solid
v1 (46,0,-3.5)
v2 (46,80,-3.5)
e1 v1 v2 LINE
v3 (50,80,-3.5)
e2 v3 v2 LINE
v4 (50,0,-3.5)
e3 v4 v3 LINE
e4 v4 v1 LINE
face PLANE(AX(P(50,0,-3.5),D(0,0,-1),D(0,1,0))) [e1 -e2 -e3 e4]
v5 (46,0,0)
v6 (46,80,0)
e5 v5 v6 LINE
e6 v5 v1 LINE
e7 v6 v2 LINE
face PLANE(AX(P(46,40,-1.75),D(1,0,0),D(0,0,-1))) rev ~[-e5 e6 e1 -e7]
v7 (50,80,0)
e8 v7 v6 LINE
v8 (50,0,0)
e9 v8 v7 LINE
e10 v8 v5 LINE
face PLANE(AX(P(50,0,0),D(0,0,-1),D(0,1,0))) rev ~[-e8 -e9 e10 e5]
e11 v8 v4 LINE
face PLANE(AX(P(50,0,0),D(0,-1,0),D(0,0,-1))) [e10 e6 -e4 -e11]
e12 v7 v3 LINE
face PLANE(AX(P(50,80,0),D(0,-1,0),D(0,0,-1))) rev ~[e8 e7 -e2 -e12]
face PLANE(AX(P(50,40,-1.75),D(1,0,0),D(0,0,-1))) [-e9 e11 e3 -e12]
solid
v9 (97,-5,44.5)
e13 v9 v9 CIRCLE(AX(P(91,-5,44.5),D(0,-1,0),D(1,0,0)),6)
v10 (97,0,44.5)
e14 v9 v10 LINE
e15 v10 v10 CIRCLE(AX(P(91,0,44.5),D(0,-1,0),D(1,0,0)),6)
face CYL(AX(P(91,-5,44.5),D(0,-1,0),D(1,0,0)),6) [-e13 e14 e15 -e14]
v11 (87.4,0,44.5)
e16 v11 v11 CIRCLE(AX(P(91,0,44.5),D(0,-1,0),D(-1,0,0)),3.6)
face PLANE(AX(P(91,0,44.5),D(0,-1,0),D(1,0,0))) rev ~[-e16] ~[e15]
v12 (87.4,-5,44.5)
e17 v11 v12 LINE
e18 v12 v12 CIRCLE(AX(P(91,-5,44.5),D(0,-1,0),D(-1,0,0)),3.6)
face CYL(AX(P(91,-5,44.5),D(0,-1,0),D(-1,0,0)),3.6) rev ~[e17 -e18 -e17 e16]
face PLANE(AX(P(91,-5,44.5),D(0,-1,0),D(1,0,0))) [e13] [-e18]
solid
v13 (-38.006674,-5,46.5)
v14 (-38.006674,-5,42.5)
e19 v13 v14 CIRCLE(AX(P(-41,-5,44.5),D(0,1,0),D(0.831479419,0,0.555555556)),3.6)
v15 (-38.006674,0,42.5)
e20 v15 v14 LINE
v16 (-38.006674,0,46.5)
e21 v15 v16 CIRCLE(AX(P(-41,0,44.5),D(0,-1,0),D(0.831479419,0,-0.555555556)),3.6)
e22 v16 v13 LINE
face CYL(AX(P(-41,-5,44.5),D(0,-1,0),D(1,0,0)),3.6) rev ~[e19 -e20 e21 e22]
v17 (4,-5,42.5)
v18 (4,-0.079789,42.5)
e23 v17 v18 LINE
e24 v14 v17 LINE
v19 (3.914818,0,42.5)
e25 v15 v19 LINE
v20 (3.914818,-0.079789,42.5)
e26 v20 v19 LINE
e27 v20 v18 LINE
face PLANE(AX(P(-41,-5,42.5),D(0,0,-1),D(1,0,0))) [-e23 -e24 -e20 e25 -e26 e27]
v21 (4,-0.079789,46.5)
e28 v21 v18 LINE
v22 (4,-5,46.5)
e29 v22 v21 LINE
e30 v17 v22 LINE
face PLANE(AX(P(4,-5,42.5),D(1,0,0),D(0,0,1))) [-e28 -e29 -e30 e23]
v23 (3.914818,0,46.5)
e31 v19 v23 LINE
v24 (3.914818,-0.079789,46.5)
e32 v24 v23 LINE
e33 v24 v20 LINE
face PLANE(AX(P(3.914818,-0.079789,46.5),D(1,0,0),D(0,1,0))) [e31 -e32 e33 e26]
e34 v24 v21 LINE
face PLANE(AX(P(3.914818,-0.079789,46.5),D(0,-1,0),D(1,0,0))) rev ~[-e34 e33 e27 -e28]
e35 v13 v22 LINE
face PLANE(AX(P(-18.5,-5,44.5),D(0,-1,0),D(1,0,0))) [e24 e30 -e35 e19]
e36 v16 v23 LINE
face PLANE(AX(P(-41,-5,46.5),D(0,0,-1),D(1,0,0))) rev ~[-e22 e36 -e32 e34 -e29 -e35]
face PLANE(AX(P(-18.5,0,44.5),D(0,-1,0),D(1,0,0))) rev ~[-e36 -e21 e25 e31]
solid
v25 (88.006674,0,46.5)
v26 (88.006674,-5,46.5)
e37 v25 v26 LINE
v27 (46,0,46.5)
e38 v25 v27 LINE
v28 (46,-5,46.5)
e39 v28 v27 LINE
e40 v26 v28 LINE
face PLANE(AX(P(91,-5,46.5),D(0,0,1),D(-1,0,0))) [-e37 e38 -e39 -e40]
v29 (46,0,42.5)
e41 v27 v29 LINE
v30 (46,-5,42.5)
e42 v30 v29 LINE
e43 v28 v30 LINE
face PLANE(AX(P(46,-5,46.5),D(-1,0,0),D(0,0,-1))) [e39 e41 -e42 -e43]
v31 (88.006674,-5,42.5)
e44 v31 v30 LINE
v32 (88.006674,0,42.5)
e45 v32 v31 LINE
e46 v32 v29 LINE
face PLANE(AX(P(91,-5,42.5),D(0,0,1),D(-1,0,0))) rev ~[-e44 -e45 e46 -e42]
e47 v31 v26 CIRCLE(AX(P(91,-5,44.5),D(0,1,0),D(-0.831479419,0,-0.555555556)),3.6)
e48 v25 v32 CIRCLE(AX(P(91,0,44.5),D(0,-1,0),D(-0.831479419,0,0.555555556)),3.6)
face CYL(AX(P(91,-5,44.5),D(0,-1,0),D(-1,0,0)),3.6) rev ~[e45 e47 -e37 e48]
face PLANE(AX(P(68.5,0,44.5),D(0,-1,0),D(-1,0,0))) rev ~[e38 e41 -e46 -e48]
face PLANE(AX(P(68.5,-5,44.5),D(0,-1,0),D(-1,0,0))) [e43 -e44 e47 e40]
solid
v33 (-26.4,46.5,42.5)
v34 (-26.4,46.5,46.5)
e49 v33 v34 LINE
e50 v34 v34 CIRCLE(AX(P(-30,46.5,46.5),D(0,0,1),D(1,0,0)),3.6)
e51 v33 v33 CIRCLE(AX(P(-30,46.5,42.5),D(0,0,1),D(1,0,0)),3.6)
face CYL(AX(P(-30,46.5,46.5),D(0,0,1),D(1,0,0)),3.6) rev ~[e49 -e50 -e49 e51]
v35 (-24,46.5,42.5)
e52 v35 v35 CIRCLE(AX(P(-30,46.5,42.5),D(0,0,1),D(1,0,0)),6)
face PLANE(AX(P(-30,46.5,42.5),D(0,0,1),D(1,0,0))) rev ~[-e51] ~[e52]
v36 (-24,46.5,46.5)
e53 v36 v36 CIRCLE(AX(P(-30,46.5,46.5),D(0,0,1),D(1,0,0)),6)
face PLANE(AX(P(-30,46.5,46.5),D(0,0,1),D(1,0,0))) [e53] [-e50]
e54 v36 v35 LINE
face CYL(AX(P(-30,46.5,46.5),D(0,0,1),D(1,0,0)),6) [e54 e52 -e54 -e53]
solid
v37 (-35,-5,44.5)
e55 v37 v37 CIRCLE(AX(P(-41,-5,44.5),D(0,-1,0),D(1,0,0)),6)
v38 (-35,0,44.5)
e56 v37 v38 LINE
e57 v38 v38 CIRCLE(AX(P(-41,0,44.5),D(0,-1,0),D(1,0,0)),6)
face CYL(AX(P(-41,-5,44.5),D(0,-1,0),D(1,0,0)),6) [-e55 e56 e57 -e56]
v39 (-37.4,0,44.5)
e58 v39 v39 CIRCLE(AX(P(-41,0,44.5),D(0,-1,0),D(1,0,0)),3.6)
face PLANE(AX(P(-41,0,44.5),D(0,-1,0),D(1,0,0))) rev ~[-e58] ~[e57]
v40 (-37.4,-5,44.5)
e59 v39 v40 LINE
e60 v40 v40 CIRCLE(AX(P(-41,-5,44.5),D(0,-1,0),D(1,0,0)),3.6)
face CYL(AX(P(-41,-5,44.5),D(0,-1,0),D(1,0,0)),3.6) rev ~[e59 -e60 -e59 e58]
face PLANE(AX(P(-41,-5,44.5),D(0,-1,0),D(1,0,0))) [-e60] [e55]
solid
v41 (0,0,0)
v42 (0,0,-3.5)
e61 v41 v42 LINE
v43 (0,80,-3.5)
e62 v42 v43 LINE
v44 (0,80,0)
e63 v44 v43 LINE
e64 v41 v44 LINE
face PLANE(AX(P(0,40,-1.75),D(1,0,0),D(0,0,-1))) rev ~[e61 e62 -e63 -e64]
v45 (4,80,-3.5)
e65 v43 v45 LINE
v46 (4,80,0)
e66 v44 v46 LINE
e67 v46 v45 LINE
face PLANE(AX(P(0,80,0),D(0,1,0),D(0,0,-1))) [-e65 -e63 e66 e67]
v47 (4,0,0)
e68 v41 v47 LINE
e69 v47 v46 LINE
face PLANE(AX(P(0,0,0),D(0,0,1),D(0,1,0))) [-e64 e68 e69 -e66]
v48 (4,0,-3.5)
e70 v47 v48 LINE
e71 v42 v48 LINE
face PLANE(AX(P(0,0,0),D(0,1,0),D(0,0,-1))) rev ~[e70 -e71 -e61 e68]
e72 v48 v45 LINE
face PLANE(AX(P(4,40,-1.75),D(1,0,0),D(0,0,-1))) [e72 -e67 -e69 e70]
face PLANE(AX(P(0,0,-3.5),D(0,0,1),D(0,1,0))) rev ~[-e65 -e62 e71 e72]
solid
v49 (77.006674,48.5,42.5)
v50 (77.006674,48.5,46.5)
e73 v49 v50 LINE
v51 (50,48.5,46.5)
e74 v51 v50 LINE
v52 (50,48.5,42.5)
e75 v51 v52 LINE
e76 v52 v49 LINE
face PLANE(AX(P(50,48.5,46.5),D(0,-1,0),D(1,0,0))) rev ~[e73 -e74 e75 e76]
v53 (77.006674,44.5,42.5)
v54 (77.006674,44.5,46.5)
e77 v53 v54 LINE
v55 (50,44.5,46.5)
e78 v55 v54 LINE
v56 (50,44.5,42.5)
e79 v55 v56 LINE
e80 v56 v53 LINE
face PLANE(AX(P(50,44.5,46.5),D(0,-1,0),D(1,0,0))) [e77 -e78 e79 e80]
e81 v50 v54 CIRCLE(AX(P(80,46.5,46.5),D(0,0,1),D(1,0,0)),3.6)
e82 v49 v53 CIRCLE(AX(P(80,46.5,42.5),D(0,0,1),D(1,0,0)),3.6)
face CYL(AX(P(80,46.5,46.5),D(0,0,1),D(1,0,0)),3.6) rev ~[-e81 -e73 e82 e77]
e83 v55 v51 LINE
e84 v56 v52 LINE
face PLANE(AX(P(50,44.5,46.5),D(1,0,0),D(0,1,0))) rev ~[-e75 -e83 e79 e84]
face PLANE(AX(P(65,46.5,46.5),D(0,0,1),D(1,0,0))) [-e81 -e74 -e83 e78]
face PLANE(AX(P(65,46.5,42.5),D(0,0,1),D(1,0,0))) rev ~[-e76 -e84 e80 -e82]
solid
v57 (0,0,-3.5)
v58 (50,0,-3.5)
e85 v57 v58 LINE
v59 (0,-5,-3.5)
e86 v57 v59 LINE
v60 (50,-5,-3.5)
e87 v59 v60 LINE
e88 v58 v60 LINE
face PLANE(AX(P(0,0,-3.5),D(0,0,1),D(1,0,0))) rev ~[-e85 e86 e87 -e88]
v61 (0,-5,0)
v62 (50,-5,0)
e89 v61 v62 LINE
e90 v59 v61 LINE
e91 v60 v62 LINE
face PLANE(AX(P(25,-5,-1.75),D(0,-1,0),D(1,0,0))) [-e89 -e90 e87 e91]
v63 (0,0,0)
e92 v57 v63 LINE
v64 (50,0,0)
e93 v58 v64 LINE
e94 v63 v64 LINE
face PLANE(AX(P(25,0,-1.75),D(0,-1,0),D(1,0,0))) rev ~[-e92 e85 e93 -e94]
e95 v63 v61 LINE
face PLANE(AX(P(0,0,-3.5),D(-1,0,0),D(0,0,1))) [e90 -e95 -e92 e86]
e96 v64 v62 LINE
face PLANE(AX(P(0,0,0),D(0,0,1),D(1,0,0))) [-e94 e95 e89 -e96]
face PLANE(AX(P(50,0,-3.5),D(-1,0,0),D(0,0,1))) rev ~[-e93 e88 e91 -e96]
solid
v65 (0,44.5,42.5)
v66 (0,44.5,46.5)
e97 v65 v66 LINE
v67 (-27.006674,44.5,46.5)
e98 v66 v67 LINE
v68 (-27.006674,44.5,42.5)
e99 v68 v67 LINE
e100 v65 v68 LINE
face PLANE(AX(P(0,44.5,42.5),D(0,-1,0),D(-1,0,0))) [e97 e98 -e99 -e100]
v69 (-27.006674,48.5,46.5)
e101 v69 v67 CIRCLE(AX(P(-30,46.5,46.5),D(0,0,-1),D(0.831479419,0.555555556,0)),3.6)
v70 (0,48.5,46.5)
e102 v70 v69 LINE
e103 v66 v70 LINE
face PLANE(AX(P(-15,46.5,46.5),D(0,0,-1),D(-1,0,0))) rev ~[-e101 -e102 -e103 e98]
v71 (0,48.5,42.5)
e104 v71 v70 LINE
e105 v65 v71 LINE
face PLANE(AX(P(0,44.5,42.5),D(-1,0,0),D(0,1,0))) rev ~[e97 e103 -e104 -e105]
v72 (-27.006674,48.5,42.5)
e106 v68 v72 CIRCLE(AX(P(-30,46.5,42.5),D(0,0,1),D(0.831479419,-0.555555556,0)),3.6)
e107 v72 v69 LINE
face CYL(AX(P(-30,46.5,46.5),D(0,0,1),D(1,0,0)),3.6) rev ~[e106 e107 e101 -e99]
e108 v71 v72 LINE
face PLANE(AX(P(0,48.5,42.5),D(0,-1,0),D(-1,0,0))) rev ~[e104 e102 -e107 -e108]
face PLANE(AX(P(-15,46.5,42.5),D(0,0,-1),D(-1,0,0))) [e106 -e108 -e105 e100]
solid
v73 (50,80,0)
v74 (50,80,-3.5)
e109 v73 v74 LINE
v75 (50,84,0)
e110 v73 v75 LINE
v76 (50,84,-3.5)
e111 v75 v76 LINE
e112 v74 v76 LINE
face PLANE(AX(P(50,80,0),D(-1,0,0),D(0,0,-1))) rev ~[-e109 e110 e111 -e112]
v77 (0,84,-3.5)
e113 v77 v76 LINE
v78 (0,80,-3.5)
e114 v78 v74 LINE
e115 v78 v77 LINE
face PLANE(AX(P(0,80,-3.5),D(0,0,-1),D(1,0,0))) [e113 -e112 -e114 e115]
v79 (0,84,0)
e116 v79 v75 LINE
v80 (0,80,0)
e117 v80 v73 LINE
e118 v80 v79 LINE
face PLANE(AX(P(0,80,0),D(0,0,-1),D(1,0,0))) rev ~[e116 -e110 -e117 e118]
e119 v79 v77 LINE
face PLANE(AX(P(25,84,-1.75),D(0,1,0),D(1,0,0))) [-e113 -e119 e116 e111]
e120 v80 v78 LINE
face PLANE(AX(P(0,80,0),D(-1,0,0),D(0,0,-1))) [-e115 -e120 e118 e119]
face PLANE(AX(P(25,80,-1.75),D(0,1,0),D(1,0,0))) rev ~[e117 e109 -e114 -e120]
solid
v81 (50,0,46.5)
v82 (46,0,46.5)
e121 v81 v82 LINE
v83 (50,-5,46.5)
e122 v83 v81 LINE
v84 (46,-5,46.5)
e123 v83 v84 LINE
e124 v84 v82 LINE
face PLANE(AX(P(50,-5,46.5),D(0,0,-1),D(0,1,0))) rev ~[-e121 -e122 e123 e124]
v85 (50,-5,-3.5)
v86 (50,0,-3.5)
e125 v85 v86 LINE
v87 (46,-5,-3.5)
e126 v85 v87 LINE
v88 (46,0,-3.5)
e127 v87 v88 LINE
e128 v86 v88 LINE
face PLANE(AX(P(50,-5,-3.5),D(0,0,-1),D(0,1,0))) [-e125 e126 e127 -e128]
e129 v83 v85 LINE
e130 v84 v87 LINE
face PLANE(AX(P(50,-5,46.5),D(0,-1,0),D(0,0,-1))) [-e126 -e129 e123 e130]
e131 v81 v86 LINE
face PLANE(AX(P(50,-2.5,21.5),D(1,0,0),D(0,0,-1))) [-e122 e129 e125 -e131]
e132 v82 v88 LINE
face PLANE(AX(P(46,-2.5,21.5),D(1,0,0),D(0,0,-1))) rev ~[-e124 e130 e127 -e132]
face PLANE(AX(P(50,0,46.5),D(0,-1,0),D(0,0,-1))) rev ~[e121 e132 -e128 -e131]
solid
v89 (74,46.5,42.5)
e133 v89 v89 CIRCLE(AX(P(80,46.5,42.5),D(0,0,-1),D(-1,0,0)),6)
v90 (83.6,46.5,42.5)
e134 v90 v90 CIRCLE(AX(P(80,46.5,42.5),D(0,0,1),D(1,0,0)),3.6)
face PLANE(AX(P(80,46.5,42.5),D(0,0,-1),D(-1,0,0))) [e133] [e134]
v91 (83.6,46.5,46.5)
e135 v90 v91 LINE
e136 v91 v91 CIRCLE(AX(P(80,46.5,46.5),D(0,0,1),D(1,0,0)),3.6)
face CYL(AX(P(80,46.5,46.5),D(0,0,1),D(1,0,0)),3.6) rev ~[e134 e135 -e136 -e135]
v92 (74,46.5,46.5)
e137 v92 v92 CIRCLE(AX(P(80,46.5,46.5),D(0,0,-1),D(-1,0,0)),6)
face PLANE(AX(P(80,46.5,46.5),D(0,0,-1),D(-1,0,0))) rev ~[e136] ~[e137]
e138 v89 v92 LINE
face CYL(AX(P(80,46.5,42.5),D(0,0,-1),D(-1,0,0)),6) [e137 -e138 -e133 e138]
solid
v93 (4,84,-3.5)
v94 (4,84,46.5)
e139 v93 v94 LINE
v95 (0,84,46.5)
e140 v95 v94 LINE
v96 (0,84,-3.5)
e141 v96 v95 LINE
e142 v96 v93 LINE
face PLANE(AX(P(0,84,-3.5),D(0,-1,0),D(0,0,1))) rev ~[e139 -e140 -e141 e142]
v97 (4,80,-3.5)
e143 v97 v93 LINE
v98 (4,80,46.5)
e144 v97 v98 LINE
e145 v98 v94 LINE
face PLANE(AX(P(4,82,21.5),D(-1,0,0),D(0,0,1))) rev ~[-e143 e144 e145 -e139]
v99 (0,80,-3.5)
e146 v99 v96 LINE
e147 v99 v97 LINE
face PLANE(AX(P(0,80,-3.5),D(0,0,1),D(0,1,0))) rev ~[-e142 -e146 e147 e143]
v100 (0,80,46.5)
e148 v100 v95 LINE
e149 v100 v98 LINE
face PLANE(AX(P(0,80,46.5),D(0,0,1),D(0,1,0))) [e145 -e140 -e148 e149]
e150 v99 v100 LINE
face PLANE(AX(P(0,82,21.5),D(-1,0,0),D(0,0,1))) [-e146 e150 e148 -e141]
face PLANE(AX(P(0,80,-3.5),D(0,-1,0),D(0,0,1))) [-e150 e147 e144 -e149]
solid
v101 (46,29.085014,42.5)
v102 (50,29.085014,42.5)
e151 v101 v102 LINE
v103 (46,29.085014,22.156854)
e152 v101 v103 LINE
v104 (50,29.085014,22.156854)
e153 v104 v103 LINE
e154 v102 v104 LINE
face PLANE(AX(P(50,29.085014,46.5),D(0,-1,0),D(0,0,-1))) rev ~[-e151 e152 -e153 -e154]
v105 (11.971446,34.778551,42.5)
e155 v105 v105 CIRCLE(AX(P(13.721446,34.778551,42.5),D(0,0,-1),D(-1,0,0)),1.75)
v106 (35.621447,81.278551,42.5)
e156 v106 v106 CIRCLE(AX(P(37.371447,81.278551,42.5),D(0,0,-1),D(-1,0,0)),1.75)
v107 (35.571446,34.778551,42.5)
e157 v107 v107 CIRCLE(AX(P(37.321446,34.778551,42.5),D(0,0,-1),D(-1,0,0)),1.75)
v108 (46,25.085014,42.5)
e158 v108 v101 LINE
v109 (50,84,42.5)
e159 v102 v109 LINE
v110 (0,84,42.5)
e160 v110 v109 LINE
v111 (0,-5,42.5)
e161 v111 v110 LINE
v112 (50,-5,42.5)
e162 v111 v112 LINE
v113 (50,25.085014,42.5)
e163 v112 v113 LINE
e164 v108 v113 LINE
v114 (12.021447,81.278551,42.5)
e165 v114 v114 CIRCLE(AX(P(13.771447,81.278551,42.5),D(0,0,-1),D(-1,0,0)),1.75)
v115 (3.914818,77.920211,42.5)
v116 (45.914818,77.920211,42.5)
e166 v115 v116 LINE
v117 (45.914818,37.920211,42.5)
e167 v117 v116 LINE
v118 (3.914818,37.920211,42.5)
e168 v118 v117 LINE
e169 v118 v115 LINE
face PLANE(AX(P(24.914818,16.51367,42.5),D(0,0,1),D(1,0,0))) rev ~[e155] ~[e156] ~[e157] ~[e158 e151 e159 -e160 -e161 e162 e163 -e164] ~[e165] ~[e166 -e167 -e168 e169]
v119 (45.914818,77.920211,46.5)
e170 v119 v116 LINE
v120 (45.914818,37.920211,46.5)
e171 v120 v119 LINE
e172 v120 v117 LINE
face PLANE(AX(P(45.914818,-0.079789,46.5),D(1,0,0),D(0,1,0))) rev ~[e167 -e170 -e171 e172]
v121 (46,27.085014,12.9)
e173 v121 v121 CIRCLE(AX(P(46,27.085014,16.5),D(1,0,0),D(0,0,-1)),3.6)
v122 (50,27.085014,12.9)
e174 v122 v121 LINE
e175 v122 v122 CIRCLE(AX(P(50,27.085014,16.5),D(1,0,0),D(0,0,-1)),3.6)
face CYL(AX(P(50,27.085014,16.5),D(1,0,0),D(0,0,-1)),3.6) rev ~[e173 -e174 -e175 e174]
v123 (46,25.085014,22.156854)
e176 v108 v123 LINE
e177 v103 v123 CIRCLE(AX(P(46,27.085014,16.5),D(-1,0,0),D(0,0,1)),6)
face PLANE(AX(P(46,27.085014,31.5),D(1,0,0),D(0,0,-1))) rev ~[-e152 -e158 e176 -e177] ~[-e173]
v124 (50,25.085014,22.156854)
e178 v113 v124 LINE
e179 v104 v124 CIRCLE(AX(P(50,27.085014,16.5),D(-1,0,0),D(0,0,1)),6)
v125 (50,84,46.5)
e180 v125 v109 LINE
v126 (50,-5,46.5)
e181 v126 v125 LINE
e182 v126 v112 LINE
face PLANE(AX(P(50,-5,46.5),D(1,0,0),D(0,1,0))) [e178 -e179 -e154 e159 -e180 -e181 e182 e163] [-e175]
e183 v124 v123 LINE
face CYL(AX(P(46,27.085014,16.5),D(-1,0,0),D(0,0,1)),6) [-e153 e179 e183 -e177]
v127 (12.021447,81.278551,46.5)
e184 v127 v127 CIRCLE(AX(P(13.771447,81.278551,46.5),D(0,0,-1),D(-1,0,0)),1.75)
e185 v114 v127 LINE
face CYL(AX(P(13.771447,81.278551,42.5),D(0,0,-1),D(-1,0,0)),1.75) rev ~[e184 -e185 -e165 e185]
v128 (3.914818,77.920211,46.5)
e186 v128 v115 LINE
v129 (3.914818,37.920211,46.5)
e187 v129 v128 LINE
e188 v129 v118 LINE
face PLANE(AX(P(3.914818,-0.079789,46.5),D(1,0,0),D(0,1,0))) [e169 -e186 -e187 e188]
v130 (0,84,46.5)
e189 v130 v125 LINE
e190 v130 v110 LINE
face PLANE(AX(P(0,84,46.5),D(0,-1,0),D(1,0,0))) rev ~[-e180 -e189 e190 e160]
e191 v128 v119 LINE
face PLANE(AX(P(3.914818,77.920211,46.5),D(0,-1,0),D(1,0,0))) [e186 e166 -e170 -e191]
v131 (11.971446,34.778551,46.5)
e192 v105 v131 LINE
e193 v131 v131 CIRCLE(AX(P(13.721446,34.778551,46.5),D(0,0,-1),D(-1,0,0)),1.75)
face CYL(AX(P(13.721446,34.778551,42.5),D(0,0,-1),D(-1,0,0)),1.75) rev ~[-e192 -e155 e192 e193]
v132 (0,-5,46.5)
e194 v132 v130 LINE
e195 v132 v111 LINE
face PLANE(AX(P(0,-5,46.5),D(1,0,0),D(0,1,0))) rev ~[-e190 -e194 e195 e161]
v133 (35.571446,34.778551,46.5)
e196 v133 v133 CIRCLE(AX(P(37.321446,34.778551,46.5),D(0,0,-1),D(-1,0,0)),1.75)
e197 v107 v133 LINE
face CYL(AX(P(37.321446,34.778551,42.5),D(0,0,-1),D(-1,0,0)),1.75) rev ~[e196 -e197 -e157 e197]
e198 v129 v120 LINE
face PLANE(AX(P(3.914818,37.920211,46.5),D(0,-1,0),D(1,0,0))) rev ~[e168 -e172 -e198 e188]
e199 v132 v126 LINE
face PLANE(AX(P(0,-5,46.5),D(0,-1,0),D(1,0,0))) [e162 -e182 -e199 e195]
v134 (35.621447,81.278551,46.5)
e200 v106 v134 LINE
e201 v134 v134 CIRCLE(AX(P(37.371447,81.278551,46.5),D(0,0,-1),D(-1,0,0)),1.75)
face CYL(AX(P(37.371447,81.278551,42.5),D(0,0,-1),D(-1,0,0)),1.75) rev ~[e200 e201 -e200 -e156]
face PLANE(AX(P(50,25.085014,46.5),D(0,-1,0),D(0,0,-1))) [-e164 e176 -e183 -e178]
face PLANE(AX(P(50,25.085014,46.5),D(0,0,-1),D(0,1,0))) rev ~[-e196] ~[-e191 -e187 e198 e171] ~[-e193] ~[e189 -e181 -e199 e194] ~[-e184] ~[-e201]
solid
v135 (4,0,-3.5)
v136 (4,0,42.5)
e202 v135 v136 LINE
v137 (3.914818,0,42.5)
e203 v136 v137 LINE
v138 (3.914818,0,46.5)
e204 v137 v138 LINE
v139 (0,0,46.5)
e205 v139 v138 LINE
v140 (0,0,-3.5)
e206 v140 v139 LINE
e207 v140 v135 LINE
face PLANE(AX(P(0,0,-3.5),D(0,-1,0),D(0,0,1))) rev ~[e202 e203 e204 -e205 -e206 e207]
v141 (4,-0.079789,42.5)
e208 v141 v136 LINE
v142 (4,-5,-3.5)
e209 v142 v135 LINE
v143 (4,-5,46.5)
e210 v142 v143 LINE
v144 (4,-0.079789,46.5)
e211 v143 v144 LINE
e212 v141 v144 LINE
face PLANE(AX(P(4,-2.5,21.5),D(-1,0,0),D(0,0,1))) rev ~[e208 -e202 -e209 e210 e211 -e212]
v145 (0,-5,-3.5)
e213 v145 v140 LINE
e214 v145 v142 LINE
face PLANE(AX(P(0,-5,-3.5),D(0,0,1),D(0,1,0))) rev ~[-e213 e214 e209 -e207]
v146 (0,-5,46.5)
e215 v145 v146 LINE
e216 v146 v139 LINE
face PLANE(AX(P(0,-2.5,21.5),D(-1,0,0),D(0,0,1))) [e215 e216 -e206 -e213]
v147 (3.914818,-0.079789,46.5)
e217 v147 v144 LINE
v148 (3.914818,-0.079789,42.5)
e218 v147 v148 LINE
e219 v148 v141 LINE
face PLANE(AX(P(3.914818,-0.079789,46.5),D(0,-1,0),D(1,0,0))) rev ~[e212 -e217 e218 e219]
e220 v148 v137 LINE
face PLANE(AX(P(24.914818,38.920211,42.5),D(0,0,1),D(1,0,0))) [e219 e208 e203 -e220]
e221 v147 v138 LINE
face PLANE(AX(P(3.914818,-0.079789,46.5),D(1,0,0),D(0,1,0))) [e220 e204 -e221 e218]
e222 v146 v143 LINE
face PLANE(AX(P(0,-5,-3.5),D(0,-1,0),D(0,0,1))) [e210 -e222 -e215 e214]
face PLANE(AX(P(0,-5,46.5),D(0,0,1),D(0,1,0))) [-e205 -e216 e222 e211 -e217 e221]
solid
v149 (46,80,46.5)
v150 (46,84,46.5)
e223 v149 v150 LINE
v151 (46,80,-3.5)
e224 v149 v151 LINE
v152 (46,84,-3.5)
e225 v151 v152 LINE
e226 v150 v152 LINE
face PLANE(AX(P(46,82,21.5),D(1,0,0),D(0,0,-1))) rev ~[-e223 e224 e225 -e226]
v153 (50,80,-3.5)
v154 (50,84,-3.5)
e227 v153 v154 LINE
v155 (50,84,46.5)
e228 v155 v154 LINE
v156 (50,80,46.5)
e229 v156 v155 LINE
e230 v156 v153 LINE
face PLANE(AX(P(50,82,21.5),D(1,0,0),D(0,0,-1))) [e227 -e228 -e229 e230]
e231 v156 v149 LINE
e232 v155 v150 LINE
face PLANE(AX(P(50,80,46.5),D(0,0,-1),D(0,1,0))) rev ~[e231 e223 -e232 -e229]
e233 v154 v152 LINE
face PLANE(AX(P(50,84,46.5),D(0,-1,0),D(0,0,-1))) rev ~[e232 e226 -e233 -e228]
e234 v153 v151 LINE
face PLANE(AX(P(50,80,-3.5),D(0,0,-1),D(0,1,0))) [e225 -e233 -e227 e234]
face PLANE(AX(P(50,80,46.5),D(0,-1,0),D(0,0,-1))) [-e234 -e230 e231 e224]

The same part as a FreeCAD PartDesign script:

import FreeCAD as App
import Part
import Sketcher
from FreeCAD import Vector


def add_polygon(sketch, points):
    """Adds a closed chain of lines whose ends are joined by coincident constraints."""
    first, n = sketch.GeometryCount, len(points)
    for a, b in zip(points, points[1:] + points[:1]):
        sketch.addGeometry(Part.LineSegment(App.Vector(*a, 0), App.Vector(*b, 0)), False)
    for i in range(n):
        sketch.addConstraint(Sketcher.Constraint("Coincident", first + i, 2, first + (i + 1) % n, 1))

doc = App.newDocument("Part")
params = doc.addObject("Spreadsheet::Sheet", "Params")
for row, (alias, value) in enumerate([
    ("sketch1_width", "80 mm"),
    ("sketch1_height", "3.5 mm"),
    ("pad1_length", "4 mm"),
    ("sketch2_width", "50 mm"),
    ("sketch2_height", "3.5 mm"),
    ("pad2_length", "4 mm"),
    ("sketch3_width", "80 mm"),
    ("sketch3_height", "3.5 mm"),
    ("pad3_length", "4 mm"),
    ("sketch4_width", "50 mm"),
    ("sketch4_height", "3.5 mm"),
    ("pad4_length", "5 mm"),
    ("sketch5_width", "5 mm"),
    ("sketch5_height", "50 mm"),
    ("pad5_length", "4 mm"),
    ("sketch6_width", "4 mm"),
    ("sketch6_height", "50 mm"),
    ("pad6_length", "4 mm"),
    ("sketch7_width", "4 mm"),
    ("sketch7_height", "50 mm"),
    ("pad7_length", "4 mm"),
    ("sketch8_width", "5 mm"),
    ("sketch8_height", "50 mm"),
    ("pad8_length", "4 mm"),
    ("sketch9_width", "50 mm"),
    ("sketch9_height", "89 mm"),
    ("pad9_length", "4 mm"),
    ("sketch10_width", "45 mm"),
    ("sketch10_height", "4 mm"),
    ("pad10_length", "5 mm"),
    ("sketch11_width", "45 mm"),
    ("sketch11_height", "4 mm"),
    ("pad11_length", "5 mm"),
    ("sketch12_diameter", "12 mm"),
    ("pad12_length", "5 mm"),
    ("sketch13_diameter", "7.2 mm"),
    ("pad13_length", "10 mm"),
    ("pad13_length2", "38 mm"),
    ("sketch14_diameter", "12 mm"),
    ("pad14_length", "5 mm"),
    ("sketch15_diameter", "7.2 mm"),
    ("pad15_length", "29 mm"),
    ("pad15_length2", "17 mm"),
    ("sketch16_width", "30 mm"),
    ("sketch16_height", "4 mm"),
    ("pad16_length", "4 mm"),
    ("sketch17_diameter", "12 mm"),
    ("pad17_length", "4 mm"),
    ("sketch18_diameter", "7.2 mm"),
    ("pad18_length", "11 mm"),
    ("pad18_length2", "21 mm"),
    ("sketch19_width", "30 mm"),
    ("sketch19_height", "4 mm"),
    ("pad19_length", "4 mm"),
    ("sketch20_diameter", "12 mm"),
    ("pad20_length", "4 mm"),
    ("sketch21_diameter", "7.2 mm"),
    ("pad21_length", "12 mm"),
    ("pad21_length2", "14 mm"),
    ("sketch22_width", "42 mm"),
    ("sketch22_height", "78 mm"),
    ("pad22_length", "4 mm"),
    ("sketch23_width", "4 mm"),
    ("sketch23_height", "30 mm"),
    ("pad23_length", "4 mm"),
    ("sketch24_diameter", "12 mm"),
    ("pad24_length", "4 mm"),
    ("sketch25_diameter", "7.2 mm"),
    ("pocket1_length", "4 mm"),
    ("sketch26_width", "42 mm"),
    ("pad25_length", "4 mm"),
    ("sketch27_diameter", "3.5 mm"),
    ("pocket2_length", "4 mm"),
], start=1):
    params.set(f"A{row}", alias)
    params.set(f"B{row}", "=" + value)
    params.setAlias(f"B{row}", alias)

body = doc.addObject("PartDesign::Body", "Body")

# Sketch on YZ plane
sketch1 = body.newObject("Sketcher::SketchObject", "Sketch")
sketch1.AttachmentSupport = (doc.getObject("YZ_Plane"), [""])
sketch1.MapMode = "FlatFace"
add_polygon(sketch1, [(80, 0), (0, 0), (0, -3.5), (80, -3.5)])  # lines 0-3
sketch1.addConstraint([
    Sketcher.Constraint("Horizontal", 0),
    Sketcher.Constraint("Vertical", 1),
    Sketcher.Constraint("Horizontal", 2),
    Sketcher.Constraint("Vertical", 3),
    Sketcher.Constraint("Coincident", 0, 2, -1, 1),
    Sketcher.Constraint("DistanceX", 0, 2, 0, 1, 80.0),
    Sketcher.Constraint("DistanceY", 1, 2, 1, 1, 3.5),
])
sketch1.setExpression("Constraints[9]", "Params.sketch1_width")
sketch1.setExpression("Constraints[10]", "Params.sketch1_height")
pad1 = body.newObject("PartDesign::Pad", "Pad")
pad1.Profile = sketch1
pad1.setExpression("Length", "Params.pad1_length")
body2 = doc.addObject("PartDesign::Body", "Body001")

# Sketch on XZ plane
sketch2 = body2.newObject("Sketcher::SketchObject", "Sketch001")
sketch2.AttachmentSupport = (doc.getObject("XZ_Plane001"), [""])
sketch2.MapMode = "FlatFace"
sketch2.AttachmentOffset = App.Placement(Vector(0, 0, -80), App.Rotation())
add_polygon(sketch2, [(0, -3.5), (0, 0), (50, 0), (50, -3.5)])  # lines 0-3
sketch2.addConstraint([
    Sketcher.Constraint("Vertical", 0),
    Sketcher.Constraint("Horizontal", 1),
    Sketcher.Constraint("Vertical", 2),
    Sketcher.Constraint("Horizontal", 3),
    Sketcher.Constraint("Coincident", 0, 2, -1, 1),
    Sketcher.Constraint("DistanceX", 1, 1, 1, 2, 50.0),
    Sketcher.Constraint("DistanceY", 0, 1, 0, 2, 3.5),
])
sketch2.setExpression("Constraints[9]", "Params.sketch2_width")
sketch2.setExpression("Constraints[10]", "Params.sketch2_height")
pad2 = body2.newObject("PartDesign::Pad", "Pad001")
pad2.Profile = sketch2
pad2.setExpression("Length", "Params.pad2_length")
pad2.Reversed = True
body3 = doc.addObject("PartDesign::Body", "Body002")

# Sketch on YZ plane
sketch3 = body3.newObject("Sketcher::SketchObject", "Sketch002")
sketch3.AttachmentSupport = (doc.getObject("YZ_Plane002"), [""])
sketch3.MapMode = "FlatFace"
sketch3.AttachmentOffset = App.Placement(Vector(0, 0, 50), App.Rotation())
add_polygon(sketch3, [(80, 0), (0, 0), (0, -3.5), (80, -3.5)])  # lines 0-3
sketch3.addConstraint([
    Sketcher.Constraint("Horizontal", 0),
    Sketcher.Constraint("Vertical", 1),
    Sketcher.Constraint("Horizontal", 2),
    Sketcher.Constraint("Vertical", 3),
    Sketcher.Constraint("Coincident", 0, 2, -1, 1),
    Sketcher.Constraint("DistanceX", 0, 2, 0, 1, 80.0),
    Sketcher.Constraint("DistanceY", 1, 2, 1, 1, 3.5),
])
sketch3.setExpression("Constraints[9]", "Params.sketch3_width")
sketch3.setExpression("Constraints[10]", "Params.sketch3_height")
pad3 = body3.newObject("PartDesign::Pad", "Pad002")
pad3.Profile = sketch3
pad3.setExpression("Length", "Params.pad3_length")
pad3.Reversed = True
body4 = doc.addObject("PartDesign::Body", "Body003")

# Sketch on XZ plane
sketch4 = body4.newObject("Sketcher::SketchObject", "Sketch003")
sketch4.AttachmentSupport = (doc.getObject("XZ_Plane003"), [""])
sketch4.MapMode = "FlatFace"
add_polygon(sketch4, [(0, 0), (0, -3.5), (50, -3.5), (50, 0)])  # lines 0-3
sketch4.addConstraint([
    Sketcher.Constraint("Vertical", 0),
    Sketcher.Constraint("Horizontal", 1),
    Sketcher.Constraint("Vertical", 2),
    Sketcher.Constraint("Horizontal", 3),
    Sketcher.Constraint("Coincident", 3, 2, -1, 1),
    Sketcher.Constraint("DistanceX", 1, 1, 1, 2, 50.0),
    Sketcher.Constraint("DistanceY", 0, 2, 0, 1, 3.5),
])
sketch4.setExpression("Constraints[9]", "Params.sketch4_width")
sketch4.setExpression("Constraints[10]", "Params.sketch4_height")
pad4 = body4.newObject("PartDesign::Pad", "Pad003")
pad4.Profile = sketch4
pad4.setExpression("Length", "Params.pad4_length")
body5 = doc.addObject("PartDesign::Body", "Body004")

# Sketch on YZ plane
sketch5 = body5.newObject("Sketcher::SketchObject", "Sketch004")
sketch5.AttachmentSupport = (doc.getObject("YZ_Plane004"), [""])
sketch5.MapMode = "FlatFace"
sketch5.AttachmentOffset = App.Placement(Vector(0, 0, 50), App.Rotation())
add_polygon(sketch5, [(0, 46), (-5, 46), (-5, -4), (0, -4)])  # lines 0-3
sketch5.addConstraint([
    Sketcher.Constraint("Horizontal", 0),
    Sketcher.Constraint("Vertical", 1),
    Sketcher.Constraint("Horizontal", 2),
    Sketcher.Constraint("Vertical", 3),
    Sketcher.Constraint("PointOnObject", 2, 2, -2),
    Sketcher.Constraint("DistanceX", 0, 2, 0, 1, 5.0),
    Sketcher.Constraint("DistanceY", 1, 2, 1, 1, 50.0),
    Sketcher.Constraint("DistanceY", -1, 1, 0, 2, 46.5),
])
sketch5.setExpression("Constraints[9]", "Params.sketch5_width")
sketch5.setExpression("Constraints[10]", "Params.sketch5_height")
pad5 = body5.newObject("PartDesign::Pad", "Pad004")
pad5.Profile = sketch5
pad5.setExpression("Length", "Params.pad5_length")
pad5.Reversed = True
body6 = doc.addObject("PartDesign::Body", "Body005")

# Sketch on YZ plane
sketch6 = body6.newObject("Sketcher::SketchObject", "Sketch005")
sketch6.AttachmentSupport = (doc.getObject("YZ_Plane005"), [""])
sketch6.MapMode = "FlatFace"
sketch6.AttachmentOffset = App.Placement(Vector(0, 0, 50), App.Rotation())
add_polygon(sketch6, [(84, 46.5), (80, 46.5), (80, -3.5), (84, -3.5)])  # lines 0-3
sketch6.addConstraint([
    Sketcher.Constraint("Horizontal", 0),
    Sketcher.Constraint("Vertical", 1),
    Sketcher.Constraint("Horizontal", 2),
    Sketcher.Constraint("Vertical", 3),
    Sketcher.Constraint("DistanceX", 0, 2, 0, 1, 4.0),
    Sketcher.Constraint("DistanceY", 1, 2, 1, 1, 50.0),
    Sketcher.Constraint("DistanceX", -1, 1, 0, 2, 80.0),
    Sketcher.Constraint("DistanceY", -1, 1, 0, 2, 46.5),
])
sketch6.setExpression("Constraints[8]", "Params.sketch6_width")
sketch6.setExpression("Constraints[9]", "Params.sketch6_height")
pad6 = body6.newObject("PartDesign::Pad", "Pad005")
pad6.Profile = sketch6
pad6.setExpression("Length", "Params.pad6_length")
pad6.Reversed = True
body7 = doc.addObject("PartDesign::Body", "Body006")

# Sketch on YZ plane
sketch7 = body7.newObject("Sketcher::SketchObject", "Sketch006")
sketch7.AttachmentSupport = (doc.getObject("YZ_Plane006"), [""])
sketch7.MapMode = "FlatFace"
add_polygon(sketch7, [(84, -3.5), (80, -3.5), (80, 46.5), (84, 46.5)])  # lines 0-3
sketch7.addConstraint([
    Sketcher.Constraint("Horizontal", 0),
    Sketcher.Constraint("Vertical", 1),
    Sketcher.Constraint("Horizontal", 2),
    Sketcher.Constraint("Vertical", 3),
    Sketcher.Constraint("DistanceX", 0, 2, 0, 1, 4.0),
    Sketcher.Constraint("DistanceY", 1, 1, 1, 2, 50.0),
    Sketcher.Constraint("DistanceX", -1, 1, 0, 2, 80.0),
    Sketcher.Constraint("DistanceY", 0, 2, -1, 1, 3.5),
])
sketch7.setExpression("Constraints[8]", "Params.sketch7_width")
sketch7.setExpression("Constraints[9]", "Params.sketch7_height")
pad7 = body7.newObject("PartDesign::Pad", "Pad006")
pad7.Profile = sketch7
pad7.setExpression("Length", "Params.pad7_length")
body8 = doc.addObject("PartDesign::Body", "Body007")

# Sketch on YZ plane
sketch8 = body8.newObject("Sketcher::SketchObject", "Sketch007")
sketch8.AttachmentSupport = (doc.getObject("YZ_Plane007"), [""])
sketch8.MapMode = "FlatFace"
add_polygon(sketch8, [(0, -4), (-5, -4), (-5, 46), (0, 46)])  # lines 0-3
sketch8.addConstraint([
    Sketcher.Constraint("Horizontal", 0),
    Sketcher.Constraint("Vertical", 1),
    Sketcher.Constraint("Horizontal", 2),
    Sketcher.Constraint("Vertical", 3),
    Sketcher.Constraint("PointOnObject", 2, 2, -2),
    Sketcher.Constraint("DistanceX", 0, 2, 0, 1, 5.0),
    Sketcher.Constraint("DistanceY", 1, 1, 1, 2, 50.0),
    Sketcher.Constraint("DistanceY", 0, 2, -1, 1, 3.5),
])
sketch8.setExpression("Constraints[9]", "Params.sketch8_width")
sketch8.setExpression("Constraints[10]", "Params.sketch8_height")
pad8 = body8.newObject("PartDesign::Pad", "Pad007")
pad8.Profile = sketch8
pad8.setExpression("Length", "Params.pad8_length")
body9 = doc.addObject("PartDesign::Body", "Body008")

# Sketch on XY plane
sketch9 = body9.newObject("Sketcher::SketchObject", "Sketch008")
sketch9.AttachmentSupport = (doc.getObject("XY_Plane008"), [""])
sketch9.MapMode = "FlatFace"
sketch9.AttachmentOffset = App.Placement(Vector(0, 0, 46.5), App.Rotation())
add_polygon(sketch9, [(0, 84), (0, -5), (50, -5), (50, 84)])  # lines 0-3
sketch9.addConstraint([
    Sketcher.Constraint("Vertical", 0),
    Sketcher.Constraint("Horizontal", 1),
    Sketcher.Constraint("Vertical", 2),
    Sketcher.Constraint("Horizontal", 3),
    Sketcher.Constraint("PointOnObject", 0, 2, -2),
    Sketcher.Constraint("DistanceX", 1, 1, 1, 2, 50.0),
    Sketcher.Constraint("DistanceY", 0, 2, 0, 1, 89.0),
    Sketcher.Constraint("DistanceY", 0, 2, -1, 1, 5.0),
])
sketch9.setExpression("Constraints[9]", "Params.sketch9_width")
sketch9.setExpression("Constraints[10]", "Params.sketch9_height")
pad9 = body9.newObject("PartDesign::Pad", "Pad008")
pad9.Profile = sketch9
pad9.setExpression("Length", "Params.pad9_length")
pad9.Reversed = True
body10 = doc.addObject("PartDesign::Body", "Body009")

# Sketch on XZ plane
sketch10 = body10.newObject("Sketcher::SketchObject", "Sketch009")
sketch10.AttachmentSupport = (doc.getObject("XZ_Plane009"), [""])
sketch10.MapMode = "FlatFace"
sketch10.AttachmentOffset = App.Placement(Vector(0, 0, 5), App.Rotation())
add_polygon(sketch10, [(91, 42.5), (91, 46.5), (46, 46.5), (46, 42.5)])  # lines 0-3
sketch10.addConstraint([
    Sketcher.Constraint("Vertical", 0),
    Sketcher.Constraint("Horizontal", 1),
    Sketcher.Constraint("Vertical", 2),
    Sketcher.Constraint("Horizontal", 3),
    Sketcher.Constraint("DistanceX", 1, 2, 1, 1, 45.0),
    Sketcher.Constraint("DistanceY", 0, 1, 0, 2, 4.0),
    Sketcher.Constraint("DistanceX", -1, 1, 0, 2, 91.0),
    Sketcher.Constraint("DistanceY", -1, 1, 0, 2, 46.5),
])
sketch10.setExpression("Constraints[8]", "Params.sketch10_width")
sketch10.setExpression("Constraints[9]", "Params.sketch10_height")
pad10 = body10.newObject("PartDesign::Pad", "Pad009")
pad10.Profile = sketch10
pad10.setExpression("Length", "Params.pad10_length")
pad10.Reversed = True
body11 = doc.addObject("PartDesign::Body", "Body010")

# Sketch on XZ plane
sketch11 = body11.newObject("Sketcher::SketchObject", "Sketch010")
sketch11.AttachmentSupport = (doc.getObject("XZ_Plane010"), [""])
sketch11.MapMode = "FlatFace"
sketch11.AttachmentOffset = App.Placement(Vector(0, 0, 5), App.Rotation())
add_polygon(sketch11, [(-41, 46.5), (-41, 42.5), (4, 42.5), (4, 46.5)])  # lines 0-3
sketch11.addConstraint([
    Sketcher.Constraint("Vertical", 0),
    Sketcher.Constraint("Horizontal", 1),
    Sketcher.Constraint("Vertical", 2),
    Sketcher.Constraint("Horizontal", 3),
    Sketcher.Constraint("DistanceX", 1, 1, 1, 2, 45.0),
    Sketcher.Constraint("DistanceY", 0, 2, 0, 1, 4.0),
    Sketcher.Constraint("DistanceX", 0, 2, -1, 1, 41.0),
    Sketcher.Constraint("DistanceY", -1, 1, 0, 2, 42.5),
])
sketch11.setExpression("Constraints[8]", "Params.sketch11_width")
sketch11.setExpression("Constraints[9]", "Params.sketch11_height")
pad11 = body11.newObject("PartDesign::Pad", "Pad010")
pad11.Profile = sketch11
pad11.setExpression("Length", "Params.pad11_length")
pad11.Reversed = True
body12 = doc.addObject("PartDesign::Body", "Body011")

# Sketch on XZ plane
sketch12 = body12.newObject("Sketcher::SketchObject", "Sketch011")
sketch12.AttachmentSupport = (doc.getObject("XZ_Plane011"), [""])
sketch12.MapMode = "FlatFace"
sketch12.AttachmentOffset = App.Placement(Vector(0, 0, 5), App.Rotation())
sketch12.addGeometry(Part.Circle(Vector(91, 44, 0), Vector(0, 0, 1), 6), False)
sketch12.addConstraint([
    Sketcher.Constraint("Diameter", 0, 12.0),
    Sketcher.Constraint("DistanceX", -1, 1, 0, 3, 91.0),
    Sketcher.Constraint("DistanceY", -1, 1, 0, 3, 44.5),
])
sketch12.setExpression("Constraints[0]", "Params.sketch12_diameter")
pad12 = body12.newObject("PartDesign::Pad", "Pad011")
pad12.Profile = sketch12
pad12.setExpression("Length", "Params.pad12_length")
pad12.Reversed = True
body13 = doc.addObject("PartDesign::Body", "Body012")

# Sketch on XZ plane
sketch13 = body13.newObject("Sketcher::SketchObject", "Sketch012")
sketch13.AttachmentSupport = (doc.getObject("XZ_Plane012"), [""])
sketch13.MapMode = "FlatFace"
sketch13.AttachmentOffset = App.Placement(Vector(0, 0, 5), App.Rotation())
sketch13.addGeometry(Part.Circle(Vector(91, 44.5, 0), Vector(0, 0, 1), 3.6), False)
sketch13.addConstraint([
    Sketcher.Constraint("Diameter", 0, 7.2),
    Sketcher.Constraint("DistanceX", -1, 1, 0, 3, 91.0),
    Sketcher.Constraint("DistanceY", -1, 1, 0, 3, 44.5),
])
sketch13.setExpression("Constraints[0]", "Params.sketch13_diameter")
pad13 = body13.newObject("PartDesign::Pad", "Pad012")
pad13.Profile = sketch13
pad13.Type = "TwoLengths"
pad13.setExpression("Length", "Params.pad13_length")
pad13.setExpression("Length2", "Params.pad13_length2")
doc.recompute()

body14 = doc.addObject("PartDesign::Body", "Body013")
body14.BaseFeature = body13
boolean = body10.newObject("PartDesign::Boolean", "Boolean")
boolean.Type = "Cut"
boolean.addObjects([body14])
doc.recompute()

boolean2 = body12.newObject("PartDesign::Boolean", "Boolean001")
boolean2.Type = "Cut"
boolean2.addObjects([body13])
body15 = doc.addObject("PartDesign::Body", "Body014")

# Sketch on XZ plane
sketch14 = body15.newObject("Sketcher::SketchObject", "Sketch013")
sketch14.AttachmentSupport = (doc.getObject("XZ_Plane014"), [""])
sketch14.MapMode = "FlatFace"
sketch14.AttachmentOffset = App.Placement(Vector(0, 0, 5), App.Rotation())
sketch14.addGeometry(Part.Circle(Vector(-41, 44, 0), Vector(0, 0, 1), 6), False)
sketch14.addConstraint([
    Sketcher.Constraint("Diameter", 0, 12.0),
    Sketcher.Constraint("DistanceX", 0, 3, -1, 1, 41.0),
    Sketcher.Constraint("DistanceY", -1, 1, 0, 3, 44.5),
])
sketch14.setExpression("Constraints[0]", "Params.sketch14_diameter")
pad14 = body15.newObject("PartDesign::Pad", "Pad013")
pad14.Profile = sketch14
pad14.setExpression("Length", "Params.pad14_length")
pad14.Reversed = True
body16 = doc.addObject("PartDesign::Body", "Body015")

# Sketch on XZ plane
sketch15 = body16.newObject("Sketcher::SketchObject", "Sketch014")
sketch15.AttachmentSupport = (doc.getObject("XZ_Plane015"), [""])
sketch15.MapMode = "FlatFace"
sketch15.AttachmentOffset = App.Placement(Vector(0, 0, 5), App.Rotation())
sketch15.addGeometry(Part.Circle(Vector(-41, 44.5, 0), Vector(0, 0, 1), 3.6), False)
sketch15.addConstraint([
    Sketcher.Constraint("Diameter", 0, 7.2),
    Sketcher.Constraint("DistanceX", 0, 3, -1, 1, 41.0),
    Sketcher.Constraint("DistanceY", -1, 1, 0, 3, 44.5),
])
sketch15.setExpression("Constraints[0]", "Params.sketch15_diameter")
pad15 = body16.newObject("PartDesign::Pad", "Pad014")
pad15.Profile = sketch15
pad15.Type = "TwoLengths"
pad15.setExpression("Length", "Params.pad15_length")
pad15.setExpression("Length2", "Params.pad15_length2")
doc.recompute()

body17 = doc.addObject("PartDesign::Body", "Body016")
body17.BaseFeature = body16
boolean3 = body11.newObject("PartDesign::Boolean", "Boolean002")
boolean3.Type = "Cut"
boolean3.addObjects([body17])
doc.recompute()

boolean4 = body15.newObject("PartDesign::Boolean", "Boolean003")
boolean4.Type = "Cut"
boolean4.addObjects([body16])
body18 = doc.addObject("PartDesign::Body", "Body017")

# Sketch on XY plane
sketch16 = body18.newObject("Sketcher::SketchObject", "Sketch015")
sketch16.AttachmentSupport = (doc.getObject("XY_Plane017"), [""])
sketch16.MapMode = "FlatFace"
sketch16.AttachmentOffset = App.Placement(Vector(0, 0, 42.5), App.Rotation())
add_polygon(sketch16, [(0, 48.5), (0, 44.5), (-30, 44.5), (-30, 48.5)])  # lines 0-3
sketch16.addConstraint([
    Sketcher.Constraint("Vertical", 0),
    Sketcher.Constraint("Horizontal", 1),
    Sketcher.Constraint("Vertical", 2),
    Sketcher.Constraint("Horizontal", 3),
    Sketcher.Constraint("PointOnObject", 0, 2, -2),
    Sketcher.Constraint("DistanceX", 1, 2, 1, 1, 30.0),
    Sketcher.Constraint("DistanceY", 0, 2, 0, 1, 4.0),
    Sketcher.Constraint("DistanceY", -1, 1, 0, 2, 44.5),
])
sketch16.setExpression("Constraints[9]", "Params.sketch16_width")
sketch16.setExpression("Constraints[10]", "Params.sketch16_height")
pad16 = body18.newObject("PartDesign::Pad", "Pad015")
pad16.Profile = sketch16
pad16.setExpression("Length", "Params.pad16_length")
body19 = doc.addObject("PartDesign::Body", "Body018")

# Sketch on XY plane
sketch17 = body19.newObject("Sketcher::SketchObject", "Sketch016")
sketch17.AttachmentSupport = (doc.getObject("XY_Plane018"), [""])
sketch17.MapMode = "FlatFace"
sketch17.AttachmentOffset = App.Placement(Vector(0, 0, 46.5), App.Rotation())
sketch17.addGeometry(Part.Circle(Vector(-30, 46, 0), Vector(0, 0, 1), 6), False)
sketch17.addConstraint([
    Sketcher.Constraint("Diameter", 0, 12.0),
    Sketcher.Constraint("DistanceX", 0, 3, -1, 1, 30.0),
    Sketcher.Constraint("DistanceY", -1, 1, 0, 3, 46.5),
])
sketch17.setExpression("Constraints[0]", "Params.sketch17_diameter")
pad17 = body19.newObject("PartDesign::Pad", "Pad016")
pad17.Profile = sketch17
pad17.setExpression("Length", "Params.pad17_length")
pad17.Reversed = True
body20 = doc.addObject("PartDesign::Body", "Body019")

# Sketch on XY plane
sketch18 = body20.newObject("Sketcher::SketchObject", "Sketch017")
sketch18.AttachmentSupport = (doc.getObject("XY_Plane019"), [""])
sketch18.MapMode = "FlatFace"
sketch18.AttachmentOffset = App.Placement(Vector(0, 0, 46.5), App.Rotation())
sketch18.addGeometry(Part.Circle(Vector(-30, 46.5, 0), Vector(0, 0, 1), 3.6), False)
sketch18.addConstraint([
    Sketcher.Constraint("Diameter", 0, 7.2),
    Sketcher.Constraint("DistanceX", 0, 3, -1, 1, 30.0),
    Sketcher.Constraint("DistanceY", -1, 1, 0, 3, 46.5),
])
sketch18.setExpression("Constraints[0]", "Params.sketch18_diameter")
pad18 = body20.newObject("PartDesign::Pad", "Pad017")
pad18.Profile = sketch18
pad18.Type = "TwoLengths"
pad18.setExpression("Length", "Params.pad18_length")
pad18.setExpression("Length2", "Params.pad18_length2")
doc.recompute()

body21 = doc.addObject("PartDesign::Body", "Body020")
body21.BaseFeature = body20
boolean5 = body18.newObject("PartDesign::Boolean", "Boolean004")
boolean5.Type = "Cut"
boolean5.addObjects([body21])
doc.recompute()

boolean6 = body19.newObject("PartDesign::Boolean", "Boolean005")
boolean6.Type = "Cut"
boolean6.addObjects([body20])
body22 = doc.addObject("PartDesign::Body", "Body021")

# Sketch on XY plane
sketch19 = body22.newObject("Sketcher::SketchObject", "Sketch018")
sketch19.AttachmentSupport = (doc.getObject("XY_Plane021"), [""])
sketch19.MapMode = "FlatFace"
sketch19.AttachmentOffset = App.Placement(Vector(0, 0, 46.5), App.Rotation())
add_polygon(sketch19, [(50, 48.5), (50, 44.5), (80, 44.5), (80, 48.5)])  # lines 0-3
sketch19.addConstraint([
    Sketcher.Constraint("Vertical", 0),
    Sketcher.Constraint("Horizontal", 1),
    Sketcher.Constraint("Vertical", 2),
    Sketcher.Constraint("Horizontal", 3),
    Sketcher.Constraint("DistanceX", 1, 1, 1, 2, 30.0),
    Sketcher.Constraint("DistanceY", 0, 2, 0, 1, 4.0),
    Sketcher.Constraint("DistanceX", -1, 1, 0, 2, 50.0),
    Sketcher.Constraint("DistanceY", -1, 1, 0, 2, 44.5),
])
sketch19.setExpression("Constraints[8]", "Params.sketch19_width")
sketch19.setExpression("Constraints[9]", "Params.sketch19_height")
pad19 = body22.newObject("PartDesign::Pad", "Pad018")
pad19.Profile = sketch19
pad19.setExpression("Length", "Params.pad19_length")
pad19.Reversed = True
body23 = doc.addObject("PartDesign::Body", "Body022")

# Sketch on XY plane
sketch20 = body23.newObject("Sketcher::SketchObject", "Sketch019")
sketch20.AttachmentSupport = (doc.getObject("XY_Plane022"), [""])
sketch20.MapMode = "FlatFace"
sketch20.AttachmentOffset = App.Placement(Vector(0, 0, 42.5), App.Rotation())
sketch20.addGeometry(Part.Circle(Vector(80, 46, 0), Vector(0, 0, 1), 6), False)
sketch20.addConstraint([
    Sketcher.Constraint("Diameter", 0, 12.0),
    Sketcher.Constraint("DistanceX", -1, 1, 0, 3, 80.0),
    Sketcher.Constraint("DistanceY", -1, 1, 0, 3, 46.5),
])
sketch20.setExpression("Constraints[0]", "Params.sketch20_diameter")
pad20 = body23.newObject("PartDesign::Pad", "Pad019")
pad20.Profile = sketch20
pad20.setExpression("Length", "Params.pad20_length")
body24 = doc.addObject("PartDesign::Body", "Body023")

# Sketch on XY plane
sketch21 = body24.newObject("Sketcher::SketchObject", "Sketch020")
sketch21.AttachmentSupport = (doc.getObject("XY_Plane023"), [""])
sketch21.MapMode = "FlatFace"
sketch21.AttachmentOffset = App.Placement(Vector(0, 0, 46.5), App.Rotation())
sketch21.addGeometry(Part.Circle(Vector(80, 46.5, 0), Vector(0, 0, 1), 3.6), False)
sketch21.addConstraint([
    Sketcher.Constraint("Diameter", 0, 7.2),
    Sketcher.Constraint("DistanceX", -1, 1, 0, 3, 80.0),
    Sketcher.Constraint("DistanceY", -1, 1, 0, 3, 46.5),
])
sketch21.setExpression("Constraints[0]", "Params.sketch21_diameter")
pad21 = body24.newObject("PartDesign::Pad", "Pad020")
pad21.Profile = sketch21
pad21.Type = "TwoLengths"
pad21.setExpression("Length", "Params.pad21_length")
pad21.setExpression("Length2", "Params.pad21_length2")
doc.recompute()

body25 = doc.addObject("PartDesign::Body", "Body024")
body25.BaseFeature = body24
boolean7 = body22.newObject("PartDesign::Boolean", "Boolean006")
boolean7.Type = "Cut"
boolean7.addObjects([body25])
doc.recompute()

boolean8 = body23.newObject("PartDesign::Boolean", "Boolean007")
boolean8.Type = "Cut"
boolean8.addObjects([body24])
body26 = doc.addObject("PartDesign::Body", "Body025")

# Sketch on XY plane
sketch22 = body26.newObject("Sketcher::SketchObject", "Sketch021")
sketch22.AttachmentSupport = (doc.getObject("XY_Plane025"), [""])
sketch22.MapMode = "FlatFace"
sketch22.AttachmentOffset = App.Placement(Vector(0, 0, 46.5), App.Rotation())
add_polygon(sketch22, [(4, 78), (4, 0), (46, 0), (46, 78)])  # lines 0-3
sketch22.addConstraint([
    Sketcher.Constraint("Vertical", 0),
    Sketcher.Constraint("Horizontal", 1),
    Sketcher.Constraint("Vertical", 2),
    Sketcher.Constraint("Horizontal", 3),
    Sketcher.Constraint("DistanceX", 1, 1, 1, 2, 42.0),
    Sketcher.Constraint("DistanceY", 0, 2, 0, 1, 78.0),
    Sketcher.Constraint("DistanceX", -1, 1, 0, 2, 3.914818),
    Sketcher.Constraint("DistanceY", 0, 2, -1, 1, 0.079789),
])
sketch22.setExpression("Constraints[8]", "Params.sketch22_width")
sketch22.setExpression("Constraints[9]", "Params.sketch22_height")
pad22 = body26.newObject("PartDesign::Pad", "Pad021")
pad22.Profile = sketch22
pad22.setExpression("Length", "Params.pad22_length")
pad22.Reversed = True
doc.recompute()

body27 = doc.addObject("PartDesign::Body", "Body026")
body27.BaseFeature = body26
boolean9 = body8.newObject("PartDesign::Boolean", "Boolean008")
boolean9.Type = "Cut"
boolean9.addObjects([body27])
doc.recompute()

body28 = doc.addObject("PartDesign::Body", "Body027")
body28.BaseFeature = body26
boolean10 = body9.newObject("PartDesign::Boolean", "Boolean009")
boolean10.Type = "Cut"
boolean10.addObjects([body28])
doc.recompute()

# Sketch on YZ plane
sketch23 = body9.newObject("Sketcher::SketchObject", "Sketch022")
sketch23.AttachmentSupport = (doc.getObject("YZ_Plane008"), [""])
sketch23.MapMode = "FlatFace"
sketch23.AttachmentOffset = App.Placement(Vector(0, 0, 50), App.Rotation())
add_polygon(sketch23, [(29.1, 46.5), (25.1, 46.5), (25.1, 16.5), (29.1, 16.5)])  # lines 0-3
sketch23.addConstraint([
    Sketcher.Constraint("Horizontal", 0),
    Sketcher.Constraint("Vertical", 1),
    Sketcher.Constraint("Horizontal", 2),
    Sketcher.Constraint("Vertical", 3),
    Sketcher.Constraint("DistanceX", 0, 2, 0, 1, 4.0),
    Sketcher.Constraint("DistanceY", 1, 2, 1, 1, 30.0),
    Sketcher.Constraint("DistanceY", -1, 1, 0, 2, 46.5),
    Sketcher.Constraint("DistanceX", -1, 1, 0, 2, 25.085014),
])
sketch23.setExpression("Constraints[8]", "Params.sketch23_width")
sketch23.setExpression("Constraints[9]", "Params.sketch23_height")
pad23 = body9.newObject("PartDesign::Pad", "Pad022")
pad23.Profile = sketch23
pad23.setExpression("Length", "Params.pad23_length")
pad23.Reversed = True

# Sketch on YZ plane
sketch24 = body9.newObject("Sketcher::SketchObject", "Sketch023")
sketch24.AttachmentSupport = (doc.getObject("YZ_Plane008"), [""])
sketch24.MapMode = "FlatFace"
sketch24.AttachmentOffset = App.Placement(Vector(0, 0, 46), App.Rotation())
sketch24.addGeometry(Part.Circle(Vector(27, 16, 0), Vector(0, 0, 1), 6), False)
sketch24.addConstraint([
    Sketcher.Constraint("Diameter", 0, 12.0),
    Sketcher.Constraint("DistanceY", -1, 1, 0, 3, 16.5),
    Sketcher.Constraint("DistanceX", -1, 1, 0, 3, 27.085014),
])
sketch24.setExpression("Constraints[0]", "Params.sketch24_diameter")
pad24 = body9.newObject("PartDesign::Pad", "Pad023")
pad24.Profile = sketch24
pad24.setExpression("Length", "Params.pad24_length")

# Sketch on YZ plane
sketch25 = body9.newObject("Sketcher::SketchObject", "Sketch024")
sketch25.AttachmentSupport = (doc.getObject("YZ_Plane008"), [""])
sketch25.MapMode = "FlatFace"
sketch25.AttachmentOffset = App.Placement(Vector(0, 0, 50), App.Rotation())
sketch25.addGeometry(Part.Circle(Vector(27.1, 16.5, 0), Vector(0, 0, 1), 3.6), False)
sketch25.addConstraint([
    Sketcher.Constraint("Diameter", 0, 7.2),
    Sketcher.Constraint("DistanceY", -1, 1, 0, 3, 16.5),
    Sketcher.Constraint("DistanceX", -1, 1, 0, 3, 27.085014),
])
sketch25.setExpression("Constraints[0]", "Params.sketch25_diameter")
pocket1 = body9.newObject("PartDesign::Pocket", "Pocket")
pocket1.Profile = sketch25
pocket1.setExpression("Length", "Params.pocket1_length")

# Sketch on XY plane
sketch26 = body9.newObject("Sketcher::SketchObject", "Sketch025")
sketch26.AttachmentSupport = (doc.getObject("XY_Plane008"), [""])
sketch26.MapMode = "FlatFace"
sketch26.AttachmentOffset = App.Placement(Vector(0, 0, 46.5), App.Rotation())
add_polygon(sketch26, [(4, 38), (4, -5), (46, -5), (46, 38)])  # lines 0-3
sketch26.addConstraint([
    Sketcher.Constraint("Vertical", 0),
    Sketcher.Constraint("Horizontal", 1),
    Sketcher.Constraint("Vertical", 2),
    Sketcher.Constraint("Horizontal", 3),
    Sketcher.Constraint("DistanceX", 1, 1, 1, 2, 42.0),
    Sketcher.Constraint("DistanceY", 0, 2, 0, 1, 42.813082),
    Sketcher.Constraint("DistanceX", -1, 1, 0, 2, 3.914818),
    Sketcher.Constraint("DistanceY", 0, 2, -1, 1, 4.892871),
])
sketch26.setExpression("Constraints[8]", "Params.sketch26_width")
pad25 = body9.newObject("PartDesign::Pad", "Pad024")
pad25.Profile = sketch26
pad25.setExpression("Length", "Params.pad25_length")
pad25.Reversed = True

# Sketch on XY plane
sketch27 = body9.newObject("Sketcher::SketchObject", "Sketch026")
sketch27.AttachmentSupport = (doc.getObject("XY_Plane008"), [""])
sketch27.MapMode = "FlatFace"
sketch27.AttachmentOffset = App.Placement(Vector(0, 0, 42.5), App.Rotation())
sketch27.addGeometry([
    Part.Circle(Vector(13.8, 81.3, 0), Vector(0, 0, 1), 1.8),
    Part.Circle(Vector(37.4, 81.3, 0), Vector(0, 0, 1), 1.8),
    Part.Circle(Vector(37.3, 34.8, 0), Vector(0, 0, 1), 1.8),
    Part.Circle(Vector(13.7, 34.8, 0), Vector(0, 0, 1), 1.8),
], False)
sketch27.addConstraint([
    Sketcher.Constraint("Equal", 0, 1),
    Sketcher.Constraint("Equal", 1, 2),
    Sketcher.Constraint("Equal", 2, 3),
    Sketcher.Constraint("Horizontal", 0, 3, 1, 3),
    Sketcher.Constraint("Horizontal", 2, 3, 3, 3),
    Sketcher.Constraint("Diameter", 0, 3.5),
    Sketcher.Constraint("DistanceX", 0, 3, 1, 3, 23.6),
    Sketcher.Constraint("DistanceY", 2, 3, 1, 3, 46.5),
    Sketcher.Constraint("DistanceX", 3, 3, 2, 3, 23.6),
    Sketcher.Constraint("DistanceX", 2, 3, 1, 3, 0.050001),
    Sketcher.Constraint("DistanceY", -1, 1, 0, 3, 81.278551),
    Sketcher.Constraint("DistanceX", -1, 1, 0, 3, 13.771447),
])
sketch27.setExpression("Constraints[5]", "Params.sketch27_diameter")
pocket2 = body9.newObject("PartDesign::Pocket", "Pocket001")
pocket2.Profile = sketch27
pocket2.setExpression("Length", "Params.pocket2_length")
pocket2.Reversed = True
doc.recompute()

boolean11 = body11.newObject("PartDesign::Boolean", "Boolean010")
boolean11.Type = "Cut"
boolean11.addObjects([body26])

doc.recompute()
